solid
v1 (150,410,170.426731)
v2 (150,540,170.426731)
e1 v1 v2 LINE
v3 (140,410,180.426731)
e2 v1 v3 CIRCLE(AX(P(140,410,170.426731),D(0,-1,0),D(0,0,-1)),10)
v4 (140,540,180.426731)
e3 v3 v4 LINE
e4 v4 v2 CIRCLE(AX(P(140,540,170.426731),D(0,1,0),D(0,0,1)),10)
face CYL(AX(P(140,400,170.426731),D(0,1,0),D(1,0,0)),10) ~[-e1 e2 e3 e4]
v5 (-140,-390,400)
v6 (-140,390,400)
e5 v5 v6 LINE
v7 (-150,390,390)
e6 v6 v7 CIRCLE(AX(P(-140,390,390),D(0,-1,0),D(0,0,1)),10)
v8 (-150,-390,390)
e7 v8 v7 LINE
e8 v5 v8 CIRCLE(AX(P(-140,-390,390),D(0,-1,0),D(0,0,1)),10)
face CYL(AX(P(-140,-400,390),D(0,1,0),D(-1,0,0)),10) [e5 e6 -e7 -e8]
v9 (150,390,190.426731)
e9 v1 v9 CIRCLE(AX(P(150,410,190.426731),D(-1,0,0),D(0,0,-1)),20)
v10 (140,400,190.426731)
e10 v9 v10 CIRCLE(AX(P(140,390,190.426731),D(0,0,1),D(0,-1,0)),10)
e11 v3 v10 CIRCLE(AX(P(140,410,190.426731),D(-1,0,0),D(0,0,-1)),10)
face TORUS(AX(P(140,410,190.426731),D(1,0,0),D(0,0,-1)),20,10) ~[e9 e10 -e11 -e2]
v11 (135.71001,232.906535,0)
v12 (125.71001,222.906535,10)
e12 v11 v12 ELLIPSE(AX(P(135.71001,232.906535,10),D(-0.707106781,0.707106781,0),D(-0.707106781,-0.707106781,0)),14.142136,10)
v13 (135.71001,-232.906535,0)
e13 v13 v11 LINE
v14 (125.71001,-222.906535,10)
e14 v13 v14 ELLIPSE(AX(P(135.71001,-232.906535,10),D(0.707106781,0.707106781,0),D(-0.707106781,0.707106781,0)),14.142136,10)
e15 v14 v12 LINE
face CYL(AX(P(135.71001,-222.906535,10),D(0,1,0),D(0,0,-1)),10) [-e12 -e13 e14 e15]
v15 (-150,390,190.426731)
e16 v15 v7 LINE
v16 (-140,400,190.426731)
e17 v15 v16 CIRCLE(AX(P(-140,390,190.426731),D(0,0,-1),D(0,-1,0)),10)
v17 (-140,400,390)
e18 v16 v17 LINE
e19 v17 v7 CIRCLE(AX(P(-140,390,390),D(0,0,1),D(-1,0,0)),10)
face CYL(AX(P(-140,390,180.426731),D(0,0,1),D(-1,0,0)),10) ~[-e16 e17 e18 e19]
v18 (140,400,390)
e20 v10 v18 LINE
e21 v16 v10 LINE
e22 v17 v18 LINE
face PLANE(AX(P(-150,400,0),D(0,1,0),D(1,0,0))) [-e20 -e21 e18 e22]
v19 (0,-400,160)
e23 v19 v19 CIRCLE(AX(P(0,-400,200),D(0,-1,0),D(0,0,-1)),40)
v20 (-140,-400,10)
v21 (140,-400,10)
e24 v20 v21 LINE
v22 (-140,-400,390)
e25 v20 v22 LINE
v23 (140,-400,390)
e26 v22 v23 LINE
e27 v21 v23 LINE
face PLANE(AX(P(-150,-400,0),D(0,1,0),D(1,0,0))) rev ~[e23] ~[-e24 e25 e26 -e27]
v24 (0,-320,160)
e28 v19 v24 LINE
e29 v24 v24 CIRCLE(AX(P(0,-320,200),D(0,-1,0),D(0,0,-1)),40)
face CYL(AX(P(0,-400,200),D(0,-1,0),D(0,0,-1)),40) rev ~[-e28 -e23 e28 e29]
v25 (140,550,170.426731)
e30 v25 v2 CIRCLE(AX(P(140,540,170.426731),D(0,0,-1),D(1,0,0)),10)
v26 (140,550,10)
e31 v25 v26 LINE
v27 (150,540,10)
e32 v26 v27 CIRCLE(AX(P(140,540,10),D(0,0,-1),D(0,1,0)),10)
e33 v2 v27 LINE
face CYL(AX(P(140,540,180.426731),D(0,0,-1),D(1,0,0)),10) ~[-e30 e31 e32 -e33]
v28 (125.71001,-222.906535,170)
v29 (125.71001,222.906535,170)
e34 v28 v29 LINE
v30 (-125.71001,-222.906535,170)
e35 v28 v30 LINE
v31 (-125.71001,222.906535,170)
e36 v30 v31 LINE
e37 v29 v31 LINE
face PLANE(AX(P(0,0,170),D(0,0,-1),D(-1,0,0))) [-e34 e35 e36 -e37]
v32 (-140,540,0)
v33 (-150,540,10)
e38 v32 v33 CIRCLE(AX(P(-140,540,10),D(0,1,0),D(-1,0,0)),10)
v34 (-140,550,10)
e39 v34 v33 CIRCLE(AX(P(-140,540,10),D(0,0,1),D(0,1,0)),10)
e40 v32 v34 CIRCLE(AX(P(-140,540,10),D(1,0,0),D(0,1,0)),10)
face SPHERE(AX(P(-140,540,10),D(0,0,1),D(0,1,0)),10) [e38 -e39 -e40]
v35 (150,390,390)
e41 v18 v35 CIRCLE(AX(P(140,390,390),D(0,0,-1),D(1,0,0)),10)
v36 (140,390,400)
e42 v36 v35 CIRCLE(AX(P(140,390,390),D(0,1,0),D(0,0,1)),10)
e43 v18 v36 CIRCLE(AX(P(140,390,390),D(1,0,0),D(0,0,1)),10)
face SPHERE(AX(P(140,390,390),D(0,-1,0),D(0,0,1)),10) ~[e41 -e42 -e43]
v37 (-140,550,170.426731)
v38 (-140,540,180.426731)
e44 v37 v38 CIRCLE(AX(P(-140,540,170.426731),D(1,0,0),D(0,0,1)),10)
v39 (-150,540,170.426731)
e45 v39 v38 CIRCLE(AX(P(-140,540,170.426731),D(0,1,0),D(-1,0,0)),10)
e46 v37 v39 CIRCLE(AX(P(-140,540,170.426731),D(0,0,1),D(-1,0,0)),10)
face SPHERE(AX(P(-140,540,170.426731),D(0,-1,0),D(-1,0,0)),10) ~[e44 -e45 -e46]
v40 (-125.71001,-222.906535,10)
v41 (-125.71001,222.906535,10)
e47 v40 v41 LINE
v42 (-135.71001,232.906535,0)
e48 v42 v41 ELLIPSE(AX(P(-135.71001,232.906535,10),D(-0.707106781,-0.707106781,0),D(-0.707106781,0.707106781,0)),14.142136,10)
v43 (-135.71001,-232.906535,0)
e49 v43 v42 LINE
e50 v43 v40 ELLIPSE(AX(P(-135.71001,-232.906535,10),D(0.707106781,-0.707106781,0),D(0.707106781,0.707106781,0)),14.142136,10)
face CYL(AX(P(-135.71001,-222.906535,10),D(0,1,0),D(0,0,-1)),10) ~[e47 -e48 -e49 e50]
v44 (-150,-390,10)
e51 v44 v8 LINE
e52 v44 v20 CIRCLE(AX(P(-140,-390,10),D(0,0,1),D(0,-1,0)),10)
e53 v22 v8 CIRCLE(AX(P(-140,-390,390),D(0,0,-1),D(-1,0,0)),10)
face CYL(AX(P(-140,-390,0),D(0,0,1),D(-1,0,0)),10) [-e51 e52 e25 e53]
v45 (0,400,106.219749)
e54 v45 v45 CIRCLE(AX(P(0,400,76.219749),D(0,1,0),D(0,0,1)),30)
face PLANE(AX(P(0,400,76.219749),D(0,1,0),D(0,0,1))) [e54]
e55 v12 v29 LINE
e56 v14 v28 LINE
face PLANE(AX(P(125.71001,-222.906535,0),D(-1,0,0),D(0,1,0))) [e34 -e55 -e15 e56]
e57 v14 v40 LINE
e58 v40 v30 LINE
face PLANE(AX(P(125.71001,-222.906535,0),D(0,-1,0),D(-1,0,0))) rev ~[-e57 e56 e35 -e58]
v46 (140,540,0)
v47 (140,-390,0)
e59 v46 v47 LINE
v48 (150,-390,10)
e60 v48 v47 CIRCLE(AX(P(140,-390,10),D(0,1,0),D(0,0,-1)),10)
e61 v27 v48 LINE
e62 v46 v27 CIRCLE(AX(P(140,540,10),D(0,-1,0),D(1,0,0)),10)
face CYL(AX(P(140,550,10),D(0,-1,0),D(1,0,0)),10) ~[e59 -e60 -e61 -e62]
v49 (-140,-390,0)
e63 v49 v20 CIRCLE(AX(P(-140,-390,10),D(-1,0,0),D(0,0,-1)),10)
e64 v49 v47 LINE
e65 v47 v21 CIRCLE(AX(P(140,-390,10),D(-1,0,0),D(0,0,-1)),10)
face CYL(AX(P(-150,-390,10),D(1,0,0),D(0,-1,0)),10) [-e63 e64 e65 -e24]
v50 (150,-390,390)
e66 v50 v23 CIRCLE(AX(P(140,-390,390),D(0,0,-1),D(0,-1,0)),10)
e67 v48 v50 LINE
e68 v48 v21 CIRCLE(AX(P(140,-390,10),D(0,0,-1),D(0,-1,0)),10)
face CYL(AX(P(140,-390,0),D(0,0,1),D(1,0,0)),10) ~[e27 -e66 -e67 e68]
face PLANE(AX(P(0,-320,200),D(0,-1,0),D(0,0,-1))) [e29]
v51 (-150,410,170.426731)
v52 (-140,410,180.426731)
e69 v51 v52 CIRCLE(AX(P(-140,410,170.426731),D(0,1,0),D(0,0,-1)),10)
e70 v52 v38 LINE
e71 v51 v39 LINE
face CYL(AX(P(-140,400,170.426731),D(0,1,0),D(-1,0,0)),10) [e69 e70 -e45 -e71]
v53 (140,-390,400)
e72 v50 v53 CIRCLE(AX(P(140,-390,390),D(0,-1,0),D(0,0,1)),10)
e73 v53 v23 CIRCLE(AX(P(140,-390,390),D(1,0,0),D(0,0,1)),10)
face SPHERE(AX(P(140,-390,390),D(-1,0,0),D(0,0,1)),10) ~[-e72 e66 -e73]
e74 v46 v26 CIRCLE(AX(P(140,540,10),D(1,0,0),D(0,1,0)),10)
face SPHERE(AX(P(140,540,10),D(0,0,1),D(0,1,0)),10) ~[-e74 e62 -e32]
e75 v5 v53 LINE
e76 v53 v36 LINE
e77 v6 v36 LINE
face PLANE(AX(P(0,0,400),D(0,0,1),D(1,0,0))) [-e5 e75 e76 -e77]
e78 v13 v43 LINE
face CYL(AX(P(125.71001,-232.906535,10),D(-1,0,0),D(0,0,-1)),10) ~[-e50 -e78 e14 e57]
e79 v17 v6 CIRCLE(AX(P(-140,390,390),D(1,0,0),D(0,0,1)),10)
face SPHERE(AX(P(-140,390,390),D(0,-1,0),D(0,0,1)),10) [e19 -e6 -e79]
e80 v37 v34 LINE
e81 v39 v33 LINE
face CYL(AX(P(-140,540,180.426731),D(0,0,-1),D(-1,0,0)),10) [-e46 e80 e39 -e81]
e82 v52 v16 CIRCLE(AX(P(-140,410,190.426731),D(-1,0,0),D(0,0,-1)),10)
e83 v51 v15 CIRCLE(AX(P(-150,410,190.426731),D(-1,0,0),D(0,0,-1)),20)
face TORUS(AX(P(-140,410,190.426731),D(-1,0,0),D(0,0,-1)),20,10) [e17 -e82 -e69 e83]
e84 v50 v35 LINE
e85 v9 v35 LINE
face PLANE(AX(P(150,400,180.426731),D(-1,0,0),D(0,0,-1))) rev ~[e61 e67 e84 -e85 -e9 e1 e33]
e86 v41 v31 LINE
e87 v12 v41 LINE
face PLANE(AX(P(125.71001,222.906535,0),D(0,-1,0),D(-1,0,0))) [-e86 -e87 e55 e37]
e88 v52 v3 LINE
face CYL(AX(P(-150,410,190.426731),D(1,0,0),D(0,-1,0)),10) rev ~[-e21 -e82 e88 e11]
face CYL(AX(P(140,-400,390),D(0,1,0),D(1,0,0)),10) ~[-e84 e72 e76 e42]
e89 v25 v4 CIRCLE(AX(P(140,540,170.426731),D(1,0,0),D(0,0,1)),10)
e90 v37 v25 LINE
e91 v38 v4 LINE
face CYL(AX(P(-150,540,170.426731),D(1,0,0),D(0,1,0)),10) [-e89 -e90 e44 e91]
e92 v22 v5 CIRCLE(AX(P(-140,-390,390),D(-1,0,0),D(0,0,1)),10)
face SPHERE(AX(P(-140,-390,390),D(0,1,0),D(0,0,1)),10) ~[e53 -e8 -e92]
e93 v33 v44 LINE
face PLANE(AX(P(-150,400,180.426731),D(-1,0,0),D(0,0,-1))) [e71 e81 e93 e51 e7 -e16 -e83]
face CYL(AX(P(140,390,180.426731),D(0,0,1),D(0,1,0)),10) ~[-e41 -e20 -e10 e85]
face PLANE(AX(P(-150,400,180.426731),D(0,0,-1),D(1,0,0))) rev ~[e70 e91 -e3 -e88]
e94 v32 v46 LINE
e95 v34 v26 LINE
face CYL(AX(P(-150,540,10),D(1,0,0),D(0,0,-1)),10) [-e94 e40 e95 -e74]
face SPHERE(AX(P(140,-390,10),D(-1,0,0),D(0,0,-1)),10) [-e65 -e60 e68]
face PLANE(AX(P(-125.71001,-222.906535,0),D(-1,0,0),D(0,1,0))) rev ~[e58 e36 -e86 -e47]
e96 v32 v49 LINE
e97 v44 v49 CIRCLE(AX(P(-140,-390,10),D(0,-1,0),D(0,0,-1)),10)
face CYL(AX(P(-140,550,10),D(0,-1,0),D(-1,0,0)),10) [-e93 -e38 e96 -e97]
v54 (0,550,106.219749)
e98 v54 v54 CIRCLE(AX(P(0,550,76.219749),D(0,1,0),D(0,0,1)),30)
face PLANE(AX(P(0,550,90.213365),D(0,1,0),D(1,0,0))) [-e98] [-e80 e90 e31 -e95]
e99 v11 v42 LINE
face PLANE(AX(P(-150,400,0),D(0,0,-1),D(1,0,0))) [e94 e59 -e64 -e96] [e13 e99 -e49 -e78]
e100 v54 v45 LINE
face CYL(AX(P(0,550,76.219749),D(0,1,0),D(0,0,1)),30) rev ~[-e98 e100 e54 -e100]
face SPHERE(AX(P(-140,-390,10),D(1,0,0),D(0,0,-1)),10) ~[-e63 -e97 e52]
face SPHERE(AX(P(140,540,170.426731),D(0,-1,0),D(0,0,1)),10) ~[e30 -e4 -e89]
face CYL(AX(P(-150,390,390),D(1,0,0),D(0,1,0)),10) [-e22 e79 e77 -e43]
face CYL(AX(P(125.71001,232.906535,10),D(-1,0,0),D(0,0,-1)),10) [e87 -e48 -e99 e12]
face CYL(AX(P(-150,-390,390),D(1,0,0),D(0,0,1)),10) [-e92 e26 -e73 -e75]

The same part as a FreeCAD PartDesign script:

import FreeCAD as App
import Part
import Sketcher

V = App.Vector
Q = App.Units.Quantity


def edges_at(feature, points):
    """Names of the edges that pass closest to the given points."""
    edges = feature.Shape.Edges
    near = lambda p: min(range(len(edges)), key=lambda i: edges[i].distToShape(Part.Vertex(*p))[0])
    return sorted({f"Edge{near(p) + 1}" for p in points})


def add_polygon(sketch, points):
    """Adds a closed chain of lines whose ends are joined by coincident constraints."""
    first, n = sketch.GeometryCount, len(points)
    for a, b in zip(points, points[1:] + points[:1]):
        sketch.addGeometry(Part.LineSegment(App.Vector(*a, 0), App.Vector(*b, 0)), False)
    for i in range(n):
        sketch.addConstraint(Sketcher.Constraint("Coincident", first + i, 2, first + (i + 1) % n, 1))

doc = App.newDocument("Part")
params = doc.addObject("Spreadsheet::Sheet", "Params")
for row, (alias, value) in enumerate([
    ("sketch1_width", "300 mm"),
    ("sketch1_height", "800 mm"),
    ("pad1_length", "400 mm"),
    ("sketch2_width", "300 mm"),
    ("pad2_length", "150 mm"),
    ("fillet_radius", "10 mm"),
    ("sketch3_diameter", "60 mm"),
    ("pocket1_length", "150 mm"),
    ("pocket2_length", "170 mm"),
    ("sketch5_diameter", "80 mm"),
    ("pocket3_length", "80 mm"),
    ("fillet2_radius", "10 mm"),
], start=1):
    params.set(f"A{row}", alias)
    params.set(f"B{row}", "=" + value)
    params.setAlias(f"B{row}", alias)

body = doc.addObject("PartDesign::Body", "Body")

sketch1 = body.newObject("Sketcher::SketchObject", "Sketch")
sketch1.AttachmentSupport = (doc.getObject("XY_Plane"), [""])
sketch1.MapMode = "FlatFace"
add_polygon(sketch1, [(-150, 400), (-150, -400), (150, -400), (150, 400)])
sketch1.addConstraint(Sketcher.Constraint("Vertical", 0))
sketch1.addConstraint(Sketcher.Constraint("Horizontal", 1))
sketch1.addConstraint(Sketcher.Constraint("Vertical", 2))
sketch1.addConstraint(Sketcher.Constraint("Horizontal", 3))
sketch1.addConstraint(Sketcher.Constraint("Symmetric", 0, 2, 2, 2, -1, 1))
sketch1.addConstraint(Sketcher.Constraint("DistanceX", 1, 1, 1, 2, Q("300 mm")))
sketch1.addConstraint(Sketcher.Constraint("DistanceY", 0, 2, 0, 1, Q("800 mm")))
sketch1.setExpression("Constraints[9]", "Params.sketch1_width")
sketch1.setExpression("Constraints[10]", "Params.sketch1_height")
pad1 = body.newObject("PartDesign::Pad", "Pad")
pad1.Profile = sketch1
pad1.setExpression("Length", "Params.pad1_length")

sketch2 = body.newObject("Sketcher::SketchObject", "Sketch001")
sketch2.AttachmentSupport = (doc.getObject("XZ_Plane"), [""])
sketch2.MapMode = "FlatFace"
sketch2.AttachmentOffset = App.Placement(V(0, 0, -400), App.Rotation())
add_polygon(sketch2, [(-150, 0), (-150, 180), (150, 180), (150, 0)])
sketch2.addConstraint(Sketcher.Constraint("Vertical", 0))
sketch2.addConstraint(Sketcher.Constraint("Horizontal", 1))
sketch2.addConstraint(Sketcher.Constraint("Vertical", 2))
sketch2.addConstraint(Sketcher.Constraint("Horizontal", 3))
sketch2.addConstraint(Sketcher.Constraint("Symmetric", 2, 2, 3, 2, -1, 1))
sketch2.addConstraint(Sketcher.Constraint("DistanceX", 1, 1, 1, 2, Q("300 mm")))
sketch2.addConstraint(Sketcher.Constraint("DistanceY", 0, 1, 0, 2, Q("180.426731 mm")))
sketch2.setExpression("Constraints[9]", "Params.sketch2_width")
pad2 = body.newObject("PartDesign::Pad", "Pad001")
pad2.Profile = sketch2
pad2.setExpression("Length", "Params.pad2_length")
pad2.Reversed = True
doc.recompute()

fillet = body.newObject("PartDesign::Fillet", "Fillet")
fillet.Base = (pad2, ["Edge1"])
fillet.UseAllEdges = True
fillet.setExpression("Radius", "Params.fillet_radius")

sketch3 = body.newObject("Sketcher::SketchObject", "Sketch002")
sketch3.AttachmentSupport = (doc.getObject("XZ_Plane"), [""])
sketch3.MapMode = "FlatFace"
sketch3.AttachmentOffset = App.Placement(V(0, 0, -550), App.Rotation())
sketch3.addGeometry(Part.Circle(V(0, 76, 0), V(0, 0, 1), 30), False)
sketch3.addConstraint(Sketcher.Constraint("PointOnObject", 0, 3, -2))
sketch3.addConstraint(Sketcher.Constraint("Diameter", 0, Q("60 mm")))
sketch3.addConstraint(Sketcher.Constraint("DistanceY", -1, 1, 0, 3, Q("76.219749 mm")))
sketch3.setExpression("Constraints[1]", "Params.sketch3_diameter")
pocket1 = body.newObject("PartDesign::Pocket", "Pocket")
pocket1.Profile = sketch3
pocket1.setExpression("Length", "Params.pocket1_length")
pocket1.Reversed = True

sketch4 = body.newObject("Sketcher::SketchObject", "Sketch003")
sketch4.AttachmentSupport = (doc.getObject("XY_Plane"), [""])
sketch4.MapMode = "FlatFace"
add_polygon(sketch4, [(126, 223), (126, -223), (-126, -223), (-126, 223)])
sketch4.addConstraint(Sketcher.Constraint("Vertical", 0))
sketch4.addConstraint(Sketcher.Constraint("Horizontal", 1))
sketch4.addConstraint(Sketcher.Constraint("Vertical", 2))
sketch4.addConstraint(Sketcher.Constraint("Horizontal", 3))
sketch4.addConstraint(Sketcher.Constraint("Symmetric", 0, 2, 2, 2, -1, 1))
sketch4.addConstraint(Sketcher.Constraint("DistanceX", 1, 2, 1, 1, Q("251.42002 mm")))
sketch4.addConstraint(Sketcher.Constraint("DistanceY", 0, 2, 0, 1, Q("445.813069 mm")))
pocket2 = body.newObject("PartDesign::Pocket", "Pocket001")
pocket2.Profile = sketch4
pocket2.setExpression("Length", "Params.pocket2_length")
pocket2.Reversed = True

sketch5 = body.newObject("Sketcher::SketchObject", "Sketch004")
sketch5.AttachmentSupport = (doc.getObject("XZ_Plane"), [""])
sketch5.MapMode = "FlatFace"
sketch5.AttachmentOffset = App.Placement(V(0, 0, 400), App.Rotation())
sketch5.addGeometry(Part.Circle(V(0, 200, 0), V(0, 0, 1), 40), False)
sketch5.addConstraint(Sketcher.Constraint("PointOnObject", 0, 3, -2))
sketch5.addConstraint(Sketcher.Constraint("Diameter", 0, Q("80 mm")))
sketch5.addConstraint(Sketcher.Constraint("DistanceY", -1, 1, 0, 3, Q("200 mm")))
sketch5.setExpression("Constraints[1]", "Params.sketch5_diameter")
pocket3 = body.newObject("PartDesign::Pocket", "Pocket002")
pocket3.Profile = sketch5
pocket3.setExpression("Length", "Params.pocket3_length")
doc.recompute()

fillet2 = body.newObject("PartDesign::Fillet", "Fillet001")
fillet2.Base = (pocket3, edges_at(pocket3, [
    (-125.71, 0, 0),
    (0, 222.907, 0),
    (125.71, 0, 0),
    (0, -222.907, 0),
]))
fillet2.setExpression("Radius", "Params.fillet2_radius")

doc.recompute()
